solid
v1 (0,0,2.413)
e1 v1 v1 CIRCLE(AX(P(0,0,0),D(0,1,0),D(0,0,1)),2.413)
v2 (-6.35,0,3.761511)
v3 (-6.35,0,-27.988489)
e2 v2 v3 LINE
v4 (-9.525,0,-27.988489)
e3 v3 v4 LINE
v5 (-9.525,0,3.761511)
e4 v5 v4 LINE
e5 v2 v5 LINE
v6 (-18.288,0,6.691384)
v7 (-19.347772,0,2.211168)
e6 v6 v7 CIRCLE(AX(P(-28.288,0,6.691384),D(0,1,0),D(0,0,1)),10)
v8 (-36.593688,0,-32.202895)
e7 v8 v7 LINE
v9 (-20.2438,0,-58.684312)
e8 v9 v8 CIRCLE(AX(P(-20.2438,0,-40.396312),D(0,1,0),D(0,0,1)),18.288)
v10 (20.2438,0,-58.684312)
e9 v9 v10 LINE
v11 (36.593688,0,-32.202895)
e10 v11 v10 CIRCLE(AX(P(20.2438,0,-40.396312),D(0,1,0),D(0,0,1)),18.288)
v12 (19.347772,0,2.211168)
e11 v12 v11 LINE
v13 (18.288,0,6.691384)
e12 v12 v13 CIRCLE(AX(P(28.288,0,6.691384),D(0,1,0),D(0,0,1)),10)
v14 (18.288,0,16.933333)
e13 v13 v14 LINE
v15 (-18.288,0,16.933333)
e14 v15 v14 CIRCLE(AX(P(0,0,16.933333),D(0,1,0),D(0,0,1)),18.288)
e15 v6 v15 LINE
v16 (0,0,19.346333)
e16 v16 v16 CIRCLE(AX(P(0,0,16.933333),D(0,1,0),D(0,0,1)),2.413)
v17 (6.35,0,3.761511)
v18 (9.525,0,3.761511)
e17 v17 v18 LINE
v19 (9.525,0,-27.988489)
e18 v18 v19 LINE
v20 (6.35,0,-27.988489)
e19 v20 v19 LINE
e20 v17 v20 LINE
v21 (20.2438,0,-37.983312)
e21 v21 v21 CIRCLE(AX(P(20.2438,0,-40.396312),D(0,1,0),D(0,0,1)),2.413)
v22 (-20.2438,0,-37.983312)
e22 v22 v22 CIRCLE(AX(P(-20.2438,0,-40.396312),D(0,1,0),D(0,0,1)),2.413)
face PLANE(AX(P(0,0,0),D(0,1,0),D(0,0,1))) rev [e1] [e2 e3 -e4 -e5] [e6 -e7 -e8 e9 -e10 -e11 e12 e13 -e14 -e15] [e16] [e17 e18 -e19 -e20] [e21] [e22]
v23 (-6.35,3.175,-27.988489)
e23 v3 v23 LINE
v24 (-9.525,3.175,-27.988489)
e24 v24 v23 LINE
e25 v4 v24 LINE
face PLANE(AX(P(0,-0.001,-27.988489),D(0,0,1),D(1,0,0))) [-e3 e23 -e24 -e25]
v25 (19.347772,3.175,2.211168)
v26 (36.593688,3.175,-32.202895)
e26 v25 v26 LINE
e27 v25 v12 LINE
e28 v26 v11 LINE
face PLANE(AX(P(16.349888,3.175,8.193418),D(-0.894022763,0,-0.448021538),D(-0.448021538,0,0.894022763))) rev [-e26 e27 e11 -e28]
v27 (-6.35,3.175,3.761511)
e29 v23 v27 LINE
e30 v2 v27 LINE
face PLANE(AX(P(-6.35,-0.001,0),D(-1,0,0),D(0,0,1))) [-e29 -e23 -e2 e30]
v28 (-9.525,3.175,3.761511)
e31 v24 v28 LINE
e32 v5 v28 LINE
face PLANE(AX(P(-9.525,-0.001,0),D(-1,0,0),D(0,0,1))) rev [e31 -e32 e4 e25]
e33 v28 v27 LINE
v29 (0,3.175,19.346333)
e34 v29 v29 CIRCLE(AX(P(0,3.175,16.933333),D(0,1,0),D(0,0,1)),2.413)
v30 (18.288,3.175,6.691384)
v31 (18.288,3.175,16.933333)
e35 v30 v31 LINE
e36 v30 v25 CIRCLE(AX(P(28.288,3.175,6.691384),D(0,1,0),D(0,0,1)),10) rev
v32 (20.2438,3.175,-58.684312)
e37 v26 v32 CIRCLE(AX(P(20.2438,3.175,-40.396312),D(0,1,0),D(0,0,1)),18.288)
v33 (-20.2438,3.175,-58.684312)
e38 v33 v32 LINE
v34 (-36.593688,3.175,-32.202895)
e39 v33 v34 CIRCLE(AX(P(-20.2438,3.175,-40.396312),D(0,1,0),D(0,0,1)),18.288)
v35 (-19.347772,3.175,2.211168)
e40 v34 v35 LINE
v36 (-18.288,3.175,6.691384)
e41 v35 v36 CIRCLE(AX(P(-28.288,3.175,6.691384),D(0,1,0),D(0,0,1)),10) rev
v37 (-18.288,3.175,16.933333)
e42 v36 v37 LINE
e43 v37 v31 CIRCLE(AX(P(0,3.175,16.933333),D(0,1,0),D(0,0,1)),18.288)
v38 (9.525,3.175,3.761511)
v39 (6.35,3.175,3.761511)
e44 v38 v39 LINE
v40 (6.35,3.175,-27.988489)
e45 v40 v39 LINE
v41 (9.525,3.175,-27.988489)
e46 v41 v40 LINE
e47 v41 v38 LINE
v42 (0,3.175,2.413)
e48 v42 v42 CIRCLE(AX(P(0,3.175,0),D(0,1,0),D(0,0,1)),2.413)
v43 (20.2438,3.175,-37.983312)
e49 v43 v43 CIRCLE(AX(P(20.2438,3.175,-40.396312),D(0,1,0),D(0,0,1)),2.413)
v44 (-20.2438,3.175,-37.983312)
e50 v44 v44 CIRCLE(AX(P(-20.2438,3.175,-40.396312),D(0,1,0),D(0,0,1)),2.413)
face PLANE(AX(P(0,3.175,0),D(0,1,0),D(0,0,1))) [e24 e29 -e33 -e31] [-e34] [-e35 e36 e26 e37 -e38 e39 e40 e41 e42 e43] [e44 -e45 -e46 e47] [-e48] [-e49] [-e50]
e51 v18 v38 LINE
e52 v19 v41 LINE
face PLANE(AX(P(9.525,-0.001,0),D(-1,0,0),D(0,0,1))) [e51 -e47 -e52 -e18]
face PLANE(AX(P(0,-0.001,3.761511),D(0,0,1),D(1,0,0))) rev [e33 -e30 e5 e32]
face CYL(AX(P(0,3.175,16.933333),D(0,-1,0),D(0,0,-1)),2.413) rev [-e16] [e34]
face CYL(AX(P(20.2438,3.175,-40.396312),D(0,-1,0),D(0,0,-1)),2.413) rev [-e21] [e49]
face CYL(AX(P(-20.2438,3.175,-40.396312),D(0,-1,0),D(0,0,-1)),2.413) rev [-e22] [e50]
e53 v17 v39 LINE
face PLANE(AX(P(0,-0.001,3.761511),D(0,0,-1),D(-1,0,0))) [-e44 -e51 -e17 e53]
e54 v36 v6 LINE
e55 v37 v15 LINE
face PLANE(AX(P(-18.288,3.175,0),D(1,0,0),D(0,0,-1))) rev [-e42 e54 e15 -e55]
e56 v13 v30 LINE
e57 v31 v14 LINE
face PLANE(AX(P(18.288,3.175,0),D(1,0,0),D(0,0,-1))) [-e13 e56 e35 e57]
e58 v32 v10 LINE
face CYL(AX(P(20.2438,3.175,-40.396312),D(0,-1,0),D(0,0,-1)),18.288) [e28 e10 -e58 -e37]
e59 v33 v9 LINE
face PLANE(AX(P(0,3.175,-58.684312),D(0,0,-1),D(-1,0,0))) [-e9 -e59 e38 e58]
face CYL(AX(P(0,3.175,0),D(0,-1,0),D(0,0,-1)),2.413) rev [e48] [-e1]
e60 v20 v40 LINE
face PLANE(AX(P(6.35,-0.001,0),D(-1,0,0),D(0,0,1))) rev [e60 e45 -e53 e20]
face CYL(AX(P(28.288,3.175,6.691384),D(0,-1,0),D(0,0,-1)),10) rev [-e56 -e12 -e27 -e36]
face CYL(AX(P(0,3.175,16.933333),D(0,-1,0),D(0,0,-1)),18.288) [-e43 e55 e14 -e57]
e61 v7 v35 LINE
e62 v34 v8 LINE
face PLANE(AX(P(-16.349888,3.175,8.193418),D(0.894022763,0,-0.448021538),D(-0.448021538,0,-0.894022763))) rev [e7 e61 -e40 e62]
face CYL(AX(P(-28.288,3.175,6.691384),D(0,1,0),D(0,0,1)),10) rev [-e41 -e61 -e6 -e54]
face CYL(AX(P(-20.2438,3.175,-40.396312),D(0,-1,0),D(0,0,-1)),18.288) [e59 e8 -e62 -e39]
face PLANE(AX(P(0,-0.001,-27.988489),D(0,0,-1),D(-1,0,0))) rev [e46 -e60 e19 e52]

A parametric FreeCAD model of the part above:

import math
import FreeCAD as App
import Part
import Sketcher
from FreeCAD import Vector
Q = App.Units.Quantity


def edges_at(feature, points):
    """Names of the edges that pass closest to the given points."""
    edges = feature.Shape.Edges
    near = lambda p: min(range(len(edges)), key=lambda i: edges[i].distToShape(Part.Vertex(*p))[0])
    return sorted({f"Edge{near(p) + 1}" for p in points})

doc = App.newDocument("Part")
params = doc.addObject("Spreadsheet::Sheet", "Params")
for row, (alias, value) in enumerate([
    ("sketch1_diameter", "0.19 in"),
    ("sketch1_radius", "0.72 in"),
    ("sketch1_width", "1.594 in"),
    ("pad1_length", "0.125 in"),
    ("fillet_radius", "10 mm"),
    ("sketch2_height", "1.25 in"),
    ("sketch2_width", "0.125 in"),
    ("sketch3_height", "1.25 in"),
    ("sketch3_width", "0.125 in"),
], start=1):
    params.set(f"A{row}", alias)
    params.set(f"B{row}", "=" + value)
    params.setAlias(f"B{row}", alias)

body = doc.addObject("PartDesign::Body", "Body")

sketch1 = doc.addObject("Sketcher::SketchObject", "Sketch")
body.addObject(sketch1)
sketch1.AttachmentSupport = (doc.XZ_Plane, [""])
sketch1.MapMode = "FlatFace"
sketch1.addGeometry(Part.ArcOfCircle(Part.Circle(Vector(0, 16.9, 0), Vector(0, 0, 1), 18.3), math.radians(0), math.radians(180)), False)
sketch1.addGeometry(Part.LineSegment(Vector(18.3, 16.9, 0), Vector(18.3, 4.3, 0)), False)
sketch1.addGeometry(Part.LineSegment(Vector(18.3, 4.3, 0), Vector(36.6, -32.2, 0)), False)
sketch1.addGeometry(Part.ArcOfCircle(Part.Circle(Vector(20.2, -40.4, 0), Vector(0, 0, 1), 18.3), math.radians(-90), math.radians(27)), False)
sketch1.addGeometry(Part.LineSegment(Vector(20.2, -58.7, 0), Vector(-20.2, -58.7, 0)), False)
sketch1.addGeometry(Part.ArcOfCircle(Part.Circle(Vector(-20.2, -40.4, 0), Vector(0, 0, 1), 18.3), math.radians(153), math.radians(270)), False)
sketch1.addGeometry(Part.LineSegment(Vector(-36.6, -32.2, 0), Vector(-18.3, 4.3, 0)), False)
sketch1.addGeometry(Part.LineSegment(Vector(-18.3, 4.3, 0), Vector(-18.3, 16.9, 0)), False)
sketch1.addGeometry(Part.Circle(Vector(0, 16.9, 0), Vector(0, 0, 1), 2.4), False)
sketch1.addGeometry(Part.Circle(Vector(0, 0, 0), Vector(0, 0, 1), 2.4), False)
sketch1.addGeometry(Part.Circle(Vector(-20.2, -40.4, 0), Vector(0, 0, 1), 2.4), False)
sketch1.addGeometry(Part.Circle(Vector(20.2, -40.4, 0), Vector(0, 0, 1), 2.4), False)
sketch1.addConstraint(Sketcher.Constraint("Tangent", 0, 1, 1, 1))
sketch1.addConstraint(Sketcher.Constraint("Coincident", 1, 2, 2, 1))
sketch1.addConstraint(Sketcher.Constraint("Tangent", 2, 2, 3, 2))
sketch1.addConstraint(Sketcher.Constraint("Tangent", 3, 1, 4, 1))
sketch1.addConstraint(Sketcher.Constraint("Tangent", 4, 2, 5, 2))
sketch1.addConstraint(Sketcher.Constraint("Tangent", 5, 1, 6, 1))
sketch1.addConstraint(Sketcher.Constraint("Coincident", 6, 2, 7, 1))
sketch1.addConstraint(Sketcher.Constraint("Tangent", 7, 2, 0, 2))
sketch1.addConstraint(Sketcher.Constraint("Vertical", 1))
sketch1.addConstraint(Sketcher.Constraint("Horizontal", 4))
sketch1.addConstraint(Sketcher.Constraint("Vertical", 7))
sketch1.addConstraint(Sketcher.Constraint("Coincident", 9, 3, -1, 1))
sketch1.addConstraint(Sketcher.Constraint("Coincident", 8, 3, 0, 3))
sketch1.addConstraint(Sketcher.Constraint("Coincident", 10, 3, 5, 3))
sketch1.addConstraint(Sketcher.Constraint("Coincident", 11, 3, 3, 3))
sketch1.addConstraint(Sketcher.Constraint("Equal", 0, 3))
sketch1.addConstraint(Sketcher.Constraint("Equal", 3, 5))
sketch1.addConstraint(Sketcher.Constraint("Equal", 8, 9))
sketch1.addConstraint(Sketcher.Constraint("Equal", 9, 10))
sketch1.addConstraint(Sketcher.Constraint("Equal", 10, 11))
sketch1.addConstraint(Sketcher.Constraint("Symmetric", 2, 2, 5, 1, -2))
sketch1.addConstraint(Sketcher.Constraint("PointOnObject", 0, 3, -2))
sketch1.addConstraint(Sketcher.Constraint("Diameter", 8, Q("0.19 in")))
sketch1.addConstraint(Sketcher.Constraint("Radius", 0, Q("0.72 in")))
sketch1.addConstraint(Sketcher.Constraint("DistanceX", 4, 2, 4, 1, Q("1.594 in")))
sketch1.addConstraint(Sketcher.Constraint("DistanceY", 1, 2, 1, 1, 12.607399))
sketch1.addConstraint(Sketcher.Constraint("DistanceX", -1, 1, 2, 2, 36.593688))
sketch1.addConstraint(Sketcher.Constraint("DistanceY", -1, 1, 0, 3, 16.933333))
sketch1.setExpression("Constraints[22]", "Params.sketch1_diameter")
sketch1.setExpression("Constraints[23]", "Params.sketch1_radius")
sketch1.setExpression("Constraints[24]", "Params.sketch1_width")
pad1 = doc.addObject("PartDesign::Pad", "Pad")
body.addObject(pad1)
pad1.Profile = sketch1
pad1.setExpression("Length", "Params.pad1_length")
pad1.Reversed = True
doc.recompute()

fillet = doc.addObject("PartDesign::Fillet", "Fillet")
body.addObject(fillet)
fillet.Base = (pad1, edges_at(pad1, [(-18.288, 1.587, 4.326), (18.288, 1.587, 4.326)]))
fillet.setExpression("Radius", "Params.fillet_radius")

sketch2 = doc.addObject("Sketcher::SketchObject", "Sketch001")
body.addObject(sketch2)
sketch2.AttachmentSupport = (doc.XZ_Plane, [""])
sketch2.MapMode = "FlatFace"
sketch2.AttachmentOffset = App.Placement(Vector(0, 0, -0.125 * 25.4), App.Rotation())
sketch2.addGeometry(Part.LineSegment(Vector(-9.5, -28, 0), Vector(-9.5, 3.8, 0)), False)
sketch2.addGeometry(Part.LineSegment(Vector(-9.5, 3.8, 0), Vector(-6.3, 3.8, 0)), False)
sketch2.addGeometry(Part.LineSegment(Vector(-6.3, 3.8, 0), Vector(-6.3, -28, 0)), False)
sketch2.addGeometry(Part.LineSegment(Vector(-6.3, -28, 0), Vector(-9.5, -28, 0)), False)
sketch2.addConstraint(Sketcher.Constraint("Coincident", 0, 2, 1, 1))
sketch2.addConstraint(Sketcher.Constraint("Coincident", 1, 2, 2, 1))
sketch2.addConstraint(Sketcher.Constraint("Coincident", 2, 2, 3, 1))
sketch2.addConstraint(Sketcher.Constraint("Coincident", 3, 2, 0, 1))
sketch2.addConstraint(Sketcher.Constraint("Vertical", 0))
sketch2.addConstraint(Sketcher.Constraint("Horizontal", 1))
sketch2.addConstraint(Sketcher.Constraint("Vertical", 2))
sketch2.addConstraint(Sketcher.Constraint("Horizontal", 3))
sketch2.addConstraint(Sketcher.Constraint("DistanceY", 0, 1, 0, 2, Q("1.25 in")))
sketch2.addConstraint(Sketcher.Constraint("DistanceX", 1, 1, 1, 2, Q("0.125 in")))
sketch2.addConstraint(Sketcher.Constraint("DistanceX", 1, 2, -1, 1, Q("0.25 in")))
sketch2.addConstraint(Sketcher.Constraint("DistanceY", -1, 1, 0, 2, 3.761511))
sketch2.setExpression("Constraints[8]", "Params.sketch2_height")
sketch2.setExpression("Constraints[9]", "Params.sketch2_width")
pocket1 = doc.addObject("PartDesign::Pocket", "Pocket")
body.addObject(pocket1)
pocket1.Profile = sketch2
pocket1.Type = "UpToFirst"
pocket1.Reversed = True

sketch3 = doc.addObject("Sketcher::SketchObject", "Sketch002")
body.addObject(sketch3)
sketch3.AttachmentSupport = (doc.XZ_Plane, [""])
sketch3.MapMode = "FlatFace"
sketch3.AttachmentOffset = App.Placement(Vector(0, 0, -0.125 * 25.4), App.Rotation())
sketch3.addGeometry(Part.LineSegment(Vector(6.3, -28, 0), Vector(6.3, 3.8, 0)), False)
sketch3.addGeometry(Part.LineSegment(Vector(6.3, 3.8, 0), Vector(9.5, 3.8, 0)), False)
sketch3.addGeometry(Part.LineSegment(Vector(9.5, 3.8, 0), Vector(9.5, -28, 0)), False)
sketch3.addGeometry(Part.LineSegment(Vector(9.5, -28, 0), Vector(6.3, -28, 0)), False)
sketch3.addConstraint(Sketcher.Constraint("Coincident", 0, 2, 1, 1))
sketch3.addConstraint(Sketcher.Constraint("Coincident", 1, 2, 2, 1))
sketch3.addConstraint(Sketcher.Constraint("Coincident", 2, 2, 3, 1))
sketch3.addConstraint(Sketcher.Constraint("Coincident", 3, 2, 0, 1))
sketch3.addConstraint(Sketcher.Constraint("Vertical", 0))
sketch3.addConstraint(Sketcher.Constraint("Horizontal", 1))
sketch3.addConstraint(Sketcher.Constraint("Vertical", 2))
sketch3.addConstraint(Sketcher.Constraint("Horizontal", 3))
sketch3.addConstraint(Sketcher.Constraint("DistanceY", 0, 1, 0, 2, Q("1.25 in")))
sketch3.addConstraint(Sketcher.Constraint("DistanceX", 1, 1, 1, 2, Q("0.125 in")))
sketch3.addConstraint(Sketcher.Constraint("DistanceX", -1, 1, 0, 2, Q("0.25 in")))
sketch3.addConstraint(Sketcher.Constraint("DistanceY", -1, 1, 0, 2, 3.761511))
sketch3.setExpression("Constraints[8]", "Params.sketch3_height")
sketch3.setExpression("Constraints[9]", "Params.sketch3_width")
pocket2 = doc.addObject("PartDesign::Pocket", "Pocket001")
body.addObject(pocket2)
pocket2.Profile = sketch3
pocket2.Type = "UpToFirst"
pocket2.Reversed = True

doc.recompute()
